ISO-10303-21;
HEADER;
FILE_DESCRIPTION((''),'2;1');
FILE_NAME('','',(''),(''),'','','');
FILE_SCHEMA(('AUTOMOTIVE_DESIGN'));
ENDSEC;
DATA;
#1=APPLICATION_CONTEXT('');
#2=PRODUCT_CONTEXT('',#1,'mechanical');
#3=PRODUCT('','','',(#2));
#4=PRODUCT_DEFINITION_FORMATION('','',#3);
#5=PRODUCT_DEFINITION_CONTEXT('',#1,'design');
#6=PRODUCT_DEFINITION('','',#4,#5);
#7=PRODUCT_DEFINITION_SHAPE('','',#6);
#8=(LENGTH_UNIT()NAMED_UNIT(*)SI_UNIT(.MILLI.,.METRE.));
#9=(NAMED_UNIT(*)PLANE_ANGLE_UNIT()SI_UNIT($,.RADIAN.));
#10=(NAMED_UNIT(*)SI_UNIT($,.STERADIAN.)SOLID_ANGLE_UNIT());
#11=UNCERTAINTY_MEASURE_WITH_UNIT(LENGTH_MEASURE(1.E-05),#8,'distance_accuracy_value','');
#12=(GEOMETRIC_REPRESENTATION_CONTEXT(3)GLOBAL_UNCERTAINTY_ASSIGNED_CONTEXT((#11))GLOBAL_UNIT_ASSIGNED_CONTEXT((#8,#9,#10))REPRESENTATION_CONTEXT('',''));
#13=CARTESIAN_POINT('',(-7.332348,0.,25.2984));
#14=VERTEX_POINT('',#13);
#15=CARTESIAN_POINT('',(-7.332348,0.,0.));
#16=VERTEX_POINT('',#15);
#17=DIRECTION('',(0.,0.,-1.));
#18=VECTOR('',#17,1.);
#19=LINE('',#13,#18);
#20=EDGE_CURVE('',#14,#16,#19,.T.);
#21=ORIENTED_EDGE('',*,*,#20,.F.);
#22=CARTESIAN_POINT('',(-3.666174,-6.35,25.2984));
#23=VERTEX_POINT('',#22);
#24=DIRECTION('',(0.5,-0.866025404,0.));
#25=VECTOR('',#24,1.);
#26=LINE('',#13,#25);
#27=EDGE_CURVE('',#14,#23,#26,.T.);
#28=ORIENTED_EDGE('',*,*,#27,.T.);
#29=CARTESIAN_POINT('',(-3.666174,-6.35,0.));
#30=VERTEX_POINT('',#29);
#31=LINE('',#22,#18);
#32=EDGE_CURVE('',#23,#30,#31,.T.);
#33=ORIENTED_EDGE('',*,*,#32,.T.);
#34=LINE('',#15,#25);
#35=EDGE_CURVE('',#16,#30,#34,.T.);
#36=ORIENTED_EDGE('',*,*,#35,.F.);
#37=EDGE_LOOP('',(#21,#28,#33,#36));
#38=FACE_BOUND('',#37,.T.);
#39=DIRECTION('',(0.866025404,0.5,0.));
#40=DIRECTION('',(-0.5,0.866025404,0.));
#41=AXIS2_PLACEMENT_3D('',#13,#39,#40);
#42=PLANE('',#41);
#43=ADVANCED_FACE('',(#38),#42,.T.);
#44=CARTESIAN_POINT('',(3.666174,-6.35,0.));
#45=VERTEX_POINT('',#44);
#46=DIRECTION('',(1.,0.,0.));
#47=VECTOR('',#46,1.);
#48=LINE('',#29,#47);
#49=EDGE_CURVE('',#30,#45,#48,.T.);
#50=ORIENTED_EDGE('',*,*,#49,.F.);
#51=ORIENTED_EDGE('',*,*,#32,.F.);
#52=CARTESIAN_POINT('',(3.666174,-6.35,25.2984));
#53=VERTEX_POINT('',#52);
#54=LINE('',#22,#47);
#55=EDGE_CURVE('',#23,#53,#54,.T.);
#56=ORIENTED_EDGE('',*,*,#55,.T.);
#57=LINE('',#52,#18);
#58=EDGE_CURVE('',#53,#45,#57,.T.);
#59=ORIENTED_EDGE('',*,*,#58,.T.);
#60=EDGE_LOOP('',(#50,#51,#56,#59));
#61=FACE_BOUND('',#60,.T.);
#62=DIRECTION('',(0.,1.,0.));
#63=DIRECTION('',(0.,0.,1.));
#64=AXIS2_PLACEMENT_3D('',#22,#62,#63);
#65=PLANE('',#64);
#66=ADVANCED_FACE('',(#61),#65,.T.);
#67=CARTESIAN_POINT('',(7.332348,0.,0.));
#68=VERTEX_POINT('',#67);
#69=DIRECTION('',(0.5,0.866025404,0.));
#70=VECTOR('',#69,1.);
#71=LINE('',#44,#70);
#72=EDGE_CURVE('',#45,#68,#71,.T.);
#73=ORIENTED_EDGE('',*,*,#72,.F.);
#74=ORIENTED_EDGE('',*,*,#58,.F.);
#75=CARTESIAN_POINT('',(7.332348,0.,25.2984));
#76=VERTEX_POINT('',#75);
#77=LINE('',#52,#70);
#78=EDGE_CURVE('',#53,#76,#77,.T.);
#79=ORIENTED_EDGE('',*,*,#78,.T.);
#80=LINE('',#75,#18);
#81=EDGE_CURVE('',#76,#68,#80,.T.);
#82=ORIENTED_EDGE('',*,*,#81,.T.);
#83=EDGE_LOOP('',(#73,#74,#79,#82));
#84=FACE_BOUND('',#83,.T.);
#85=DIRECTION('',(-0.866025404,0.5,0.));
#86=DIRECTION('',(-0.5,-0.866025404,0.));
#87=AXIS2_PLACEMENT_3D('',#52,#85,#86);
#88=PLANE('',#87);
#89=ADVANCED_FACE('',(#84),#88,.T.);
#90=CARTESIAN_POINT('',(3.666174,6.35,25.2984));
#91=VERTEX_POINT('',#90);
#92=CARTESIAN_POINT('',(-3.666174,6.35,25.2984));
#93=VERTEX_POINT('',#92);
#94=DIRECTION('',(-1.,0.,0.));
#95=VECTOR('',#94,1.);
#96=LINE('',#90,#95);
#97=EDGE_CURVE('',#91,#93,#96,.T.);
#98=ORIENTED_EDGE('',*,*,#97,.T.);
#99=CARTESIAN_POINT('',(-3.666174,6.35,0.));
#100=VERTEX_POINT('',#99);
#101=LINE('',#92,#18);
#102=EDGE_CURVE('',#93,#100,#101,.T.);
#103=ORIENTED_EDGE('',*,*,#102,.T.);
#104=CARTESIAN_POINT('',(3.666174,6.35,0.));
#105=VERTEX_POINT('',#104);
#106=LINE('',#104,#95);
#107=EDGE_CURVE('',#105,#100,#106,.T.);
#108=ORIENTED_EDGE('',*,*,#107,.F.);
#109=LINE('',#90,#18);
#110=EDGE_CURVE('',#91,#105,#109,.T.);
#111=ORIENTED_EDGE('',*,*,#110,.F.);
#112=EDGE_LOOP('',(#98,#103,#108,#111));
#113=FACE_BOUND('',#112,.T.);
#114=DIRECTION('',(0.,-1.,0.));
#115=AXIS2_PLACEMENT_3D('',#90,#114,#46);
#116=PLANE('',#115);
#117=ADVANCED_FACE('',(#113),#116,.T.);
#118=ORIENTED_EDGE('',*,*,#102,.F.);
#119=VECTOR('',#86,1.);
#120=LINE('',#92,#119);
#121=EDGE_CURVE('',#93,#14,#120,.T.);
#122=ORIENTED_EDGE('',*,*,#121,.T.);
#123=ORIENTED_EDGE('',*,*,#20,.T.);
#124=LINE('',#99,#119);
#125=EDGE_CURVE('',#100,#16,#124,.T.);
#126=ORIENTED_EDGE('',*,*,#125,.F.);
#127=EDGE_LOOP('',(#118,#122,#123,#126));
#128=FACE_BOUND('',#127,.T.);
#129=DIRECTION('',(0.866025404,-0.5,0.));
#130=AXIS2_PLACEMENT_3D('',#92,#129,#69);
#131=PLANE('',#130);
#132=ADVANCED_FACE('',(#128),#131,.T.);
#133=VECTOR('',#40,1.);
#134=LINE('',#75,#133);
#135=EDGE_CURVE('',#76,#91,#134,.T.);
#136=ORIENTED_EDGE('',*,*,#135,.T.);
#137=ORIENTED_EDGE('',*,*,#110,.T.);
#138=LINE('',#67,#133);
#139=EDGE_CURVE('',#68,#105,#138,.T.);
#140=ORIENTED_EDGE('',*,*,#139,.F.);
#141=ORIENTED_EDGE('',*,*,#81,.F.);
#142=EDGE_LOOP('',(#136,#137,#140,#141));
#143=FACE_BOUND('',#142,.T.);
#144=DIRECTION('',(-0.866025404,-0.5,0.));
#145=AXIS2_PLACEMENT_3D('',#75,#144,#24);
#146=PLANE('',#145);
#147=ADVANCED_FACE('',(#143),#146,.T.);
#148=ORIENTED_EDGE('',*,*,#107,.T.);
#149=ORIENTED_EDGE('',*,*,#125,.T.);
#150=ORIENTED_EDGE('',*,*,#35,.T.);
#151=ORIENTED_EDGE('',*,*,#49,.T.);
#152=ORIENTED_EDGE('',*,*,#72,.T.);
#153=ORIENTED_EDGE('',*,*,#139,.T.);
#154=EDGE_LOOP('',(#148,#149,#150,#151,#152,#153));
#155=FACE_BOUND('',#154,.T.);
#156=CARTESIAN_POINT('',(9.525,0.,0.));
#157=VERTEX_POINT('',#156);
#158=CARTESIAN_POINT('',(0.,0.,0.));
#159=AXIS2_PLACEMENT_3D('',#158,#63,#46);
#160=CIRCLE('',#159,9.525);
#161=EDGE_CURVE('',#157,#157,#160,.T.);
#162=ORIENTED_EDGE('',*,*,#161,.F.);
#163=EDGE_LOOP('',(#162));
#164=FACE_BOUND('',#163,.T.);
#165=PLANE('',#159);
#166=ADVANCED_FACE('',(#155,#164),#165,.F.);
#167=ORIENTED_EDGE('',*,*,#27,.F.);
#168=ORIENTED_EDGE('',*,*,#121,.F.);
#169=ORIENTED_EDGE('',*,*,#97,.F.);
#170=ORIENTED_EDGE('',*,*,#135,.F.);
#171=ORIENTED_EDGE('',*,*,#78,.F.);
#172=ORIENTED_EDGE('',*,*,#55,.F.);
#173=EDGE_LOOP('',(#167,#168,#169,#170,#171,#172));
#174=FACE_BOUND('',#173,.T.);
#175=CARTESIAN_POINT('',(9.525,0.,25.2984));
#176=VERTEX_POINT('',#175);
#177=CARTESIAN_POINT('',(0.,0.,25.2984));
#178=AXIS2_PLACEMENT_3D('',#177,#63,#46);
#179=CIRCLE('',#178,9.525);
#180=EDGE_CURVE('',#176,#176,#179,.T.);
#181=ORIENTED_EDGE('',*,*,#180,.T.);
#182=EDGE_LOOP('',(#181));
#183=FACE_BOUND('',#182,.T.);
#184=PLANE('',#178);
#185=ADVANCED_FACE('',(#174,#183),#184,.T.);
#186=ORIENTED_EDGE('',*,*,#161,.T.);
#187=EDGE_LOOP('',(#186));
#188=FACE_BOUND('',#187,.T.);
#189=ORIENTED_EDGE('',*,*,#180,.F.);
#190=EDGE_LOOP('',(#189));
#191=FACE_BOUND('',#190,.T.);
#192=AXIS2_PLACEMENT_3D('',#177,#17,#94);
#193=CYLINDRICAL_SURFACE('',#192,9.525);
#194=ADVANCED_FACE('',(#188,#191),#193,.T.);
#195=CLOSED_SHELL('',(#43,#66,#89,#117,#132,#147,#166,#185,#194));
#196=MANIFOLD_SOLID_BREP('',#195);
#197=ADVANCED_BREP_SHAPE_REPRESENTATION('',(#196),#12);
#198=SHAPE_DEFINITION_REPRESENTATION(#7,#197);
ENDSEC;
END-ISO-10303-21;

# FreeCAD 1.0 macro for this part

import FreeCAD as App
import Part
import Sketcher

V = App.Vector
Q = App.Units.Quantity


def add_polygon(sketch, points):
    """Adds a closed chain of lines whose ends are joined by coincident constraints."""
    first, n = sketch.GeometryCount, len(points)
    for a, b in zip(points, points[1:] + points[:1]):
        sketch.addGeometry(Part.LineSegment(App.Vector(*a, 0), App.Vector(*b, 0)), False)
    for i in range(n):
        sketch.addConstraint(Sketcher.Constraint("Coincident", first + i, 2, first + (i + 1) % n, 1))

doc = App.newDocument("Part")
body = doc.addObject("PartDesign::Body", "Body")

# Sketch on XY plane
sketch1 = doc.addObject("Sketcher::SketchObject", "Sketch")
body.addObject(sketch1)
sketch1.AttachmentSupport = (doc.XY_Plane, [""])
sketch1.MapMode = "FlatFace"
sketch1.addGeometry(Part.Circle(V(0, 0, 0), V(0, 0, 1), 10), False)  # 0
add_polygon(sketch1, [(-7, 0), (-4, 6), (4, 6), (7, 0), (4, -6), (-4, -6)])  # lines 1-6
sketch1.addConstraint([
    Sketcher.Constraint("Horizontal", 2),
    Sketcher.Constraint("Horizontal", 5),
    Sketcher.Constraint("Coincident", 0, 3, -1, 1),
    Sketcher.Constraint("Symmetric", 1, 2, 4, 2, -1, 1),
    Sketcher.Constraint("Symmetric", 3, 2, 6, 2, -1, 1),
    Sketcher.Constraint("PointOnObject", 3, 2, -1),
    Sketcher.Constraint("Parallel", 3, 6),
    Sketcher.Constraint("Vertical", 2, 2, 4, 2),
    Sketcher.Constraint("Diameter", 0, Q("0.75 in")),
    Sketcher.Constraint("Angle", 1, Q("60 deg")),
    Sketcher.Constraint("DistanceY", 4, 2, 2, 2, Q("0.5 in")),
    Sketcher.Constraint("DistanceX", 2, 1, 2, 2, 7.332348),
])
pad1 = doc.addObject("PartDesign::Pad", "Pad")
body.addObject(pad1)
pad1.Profile = sketch1
pad1.Length = Q("0.996 in")

doc.recompute()
